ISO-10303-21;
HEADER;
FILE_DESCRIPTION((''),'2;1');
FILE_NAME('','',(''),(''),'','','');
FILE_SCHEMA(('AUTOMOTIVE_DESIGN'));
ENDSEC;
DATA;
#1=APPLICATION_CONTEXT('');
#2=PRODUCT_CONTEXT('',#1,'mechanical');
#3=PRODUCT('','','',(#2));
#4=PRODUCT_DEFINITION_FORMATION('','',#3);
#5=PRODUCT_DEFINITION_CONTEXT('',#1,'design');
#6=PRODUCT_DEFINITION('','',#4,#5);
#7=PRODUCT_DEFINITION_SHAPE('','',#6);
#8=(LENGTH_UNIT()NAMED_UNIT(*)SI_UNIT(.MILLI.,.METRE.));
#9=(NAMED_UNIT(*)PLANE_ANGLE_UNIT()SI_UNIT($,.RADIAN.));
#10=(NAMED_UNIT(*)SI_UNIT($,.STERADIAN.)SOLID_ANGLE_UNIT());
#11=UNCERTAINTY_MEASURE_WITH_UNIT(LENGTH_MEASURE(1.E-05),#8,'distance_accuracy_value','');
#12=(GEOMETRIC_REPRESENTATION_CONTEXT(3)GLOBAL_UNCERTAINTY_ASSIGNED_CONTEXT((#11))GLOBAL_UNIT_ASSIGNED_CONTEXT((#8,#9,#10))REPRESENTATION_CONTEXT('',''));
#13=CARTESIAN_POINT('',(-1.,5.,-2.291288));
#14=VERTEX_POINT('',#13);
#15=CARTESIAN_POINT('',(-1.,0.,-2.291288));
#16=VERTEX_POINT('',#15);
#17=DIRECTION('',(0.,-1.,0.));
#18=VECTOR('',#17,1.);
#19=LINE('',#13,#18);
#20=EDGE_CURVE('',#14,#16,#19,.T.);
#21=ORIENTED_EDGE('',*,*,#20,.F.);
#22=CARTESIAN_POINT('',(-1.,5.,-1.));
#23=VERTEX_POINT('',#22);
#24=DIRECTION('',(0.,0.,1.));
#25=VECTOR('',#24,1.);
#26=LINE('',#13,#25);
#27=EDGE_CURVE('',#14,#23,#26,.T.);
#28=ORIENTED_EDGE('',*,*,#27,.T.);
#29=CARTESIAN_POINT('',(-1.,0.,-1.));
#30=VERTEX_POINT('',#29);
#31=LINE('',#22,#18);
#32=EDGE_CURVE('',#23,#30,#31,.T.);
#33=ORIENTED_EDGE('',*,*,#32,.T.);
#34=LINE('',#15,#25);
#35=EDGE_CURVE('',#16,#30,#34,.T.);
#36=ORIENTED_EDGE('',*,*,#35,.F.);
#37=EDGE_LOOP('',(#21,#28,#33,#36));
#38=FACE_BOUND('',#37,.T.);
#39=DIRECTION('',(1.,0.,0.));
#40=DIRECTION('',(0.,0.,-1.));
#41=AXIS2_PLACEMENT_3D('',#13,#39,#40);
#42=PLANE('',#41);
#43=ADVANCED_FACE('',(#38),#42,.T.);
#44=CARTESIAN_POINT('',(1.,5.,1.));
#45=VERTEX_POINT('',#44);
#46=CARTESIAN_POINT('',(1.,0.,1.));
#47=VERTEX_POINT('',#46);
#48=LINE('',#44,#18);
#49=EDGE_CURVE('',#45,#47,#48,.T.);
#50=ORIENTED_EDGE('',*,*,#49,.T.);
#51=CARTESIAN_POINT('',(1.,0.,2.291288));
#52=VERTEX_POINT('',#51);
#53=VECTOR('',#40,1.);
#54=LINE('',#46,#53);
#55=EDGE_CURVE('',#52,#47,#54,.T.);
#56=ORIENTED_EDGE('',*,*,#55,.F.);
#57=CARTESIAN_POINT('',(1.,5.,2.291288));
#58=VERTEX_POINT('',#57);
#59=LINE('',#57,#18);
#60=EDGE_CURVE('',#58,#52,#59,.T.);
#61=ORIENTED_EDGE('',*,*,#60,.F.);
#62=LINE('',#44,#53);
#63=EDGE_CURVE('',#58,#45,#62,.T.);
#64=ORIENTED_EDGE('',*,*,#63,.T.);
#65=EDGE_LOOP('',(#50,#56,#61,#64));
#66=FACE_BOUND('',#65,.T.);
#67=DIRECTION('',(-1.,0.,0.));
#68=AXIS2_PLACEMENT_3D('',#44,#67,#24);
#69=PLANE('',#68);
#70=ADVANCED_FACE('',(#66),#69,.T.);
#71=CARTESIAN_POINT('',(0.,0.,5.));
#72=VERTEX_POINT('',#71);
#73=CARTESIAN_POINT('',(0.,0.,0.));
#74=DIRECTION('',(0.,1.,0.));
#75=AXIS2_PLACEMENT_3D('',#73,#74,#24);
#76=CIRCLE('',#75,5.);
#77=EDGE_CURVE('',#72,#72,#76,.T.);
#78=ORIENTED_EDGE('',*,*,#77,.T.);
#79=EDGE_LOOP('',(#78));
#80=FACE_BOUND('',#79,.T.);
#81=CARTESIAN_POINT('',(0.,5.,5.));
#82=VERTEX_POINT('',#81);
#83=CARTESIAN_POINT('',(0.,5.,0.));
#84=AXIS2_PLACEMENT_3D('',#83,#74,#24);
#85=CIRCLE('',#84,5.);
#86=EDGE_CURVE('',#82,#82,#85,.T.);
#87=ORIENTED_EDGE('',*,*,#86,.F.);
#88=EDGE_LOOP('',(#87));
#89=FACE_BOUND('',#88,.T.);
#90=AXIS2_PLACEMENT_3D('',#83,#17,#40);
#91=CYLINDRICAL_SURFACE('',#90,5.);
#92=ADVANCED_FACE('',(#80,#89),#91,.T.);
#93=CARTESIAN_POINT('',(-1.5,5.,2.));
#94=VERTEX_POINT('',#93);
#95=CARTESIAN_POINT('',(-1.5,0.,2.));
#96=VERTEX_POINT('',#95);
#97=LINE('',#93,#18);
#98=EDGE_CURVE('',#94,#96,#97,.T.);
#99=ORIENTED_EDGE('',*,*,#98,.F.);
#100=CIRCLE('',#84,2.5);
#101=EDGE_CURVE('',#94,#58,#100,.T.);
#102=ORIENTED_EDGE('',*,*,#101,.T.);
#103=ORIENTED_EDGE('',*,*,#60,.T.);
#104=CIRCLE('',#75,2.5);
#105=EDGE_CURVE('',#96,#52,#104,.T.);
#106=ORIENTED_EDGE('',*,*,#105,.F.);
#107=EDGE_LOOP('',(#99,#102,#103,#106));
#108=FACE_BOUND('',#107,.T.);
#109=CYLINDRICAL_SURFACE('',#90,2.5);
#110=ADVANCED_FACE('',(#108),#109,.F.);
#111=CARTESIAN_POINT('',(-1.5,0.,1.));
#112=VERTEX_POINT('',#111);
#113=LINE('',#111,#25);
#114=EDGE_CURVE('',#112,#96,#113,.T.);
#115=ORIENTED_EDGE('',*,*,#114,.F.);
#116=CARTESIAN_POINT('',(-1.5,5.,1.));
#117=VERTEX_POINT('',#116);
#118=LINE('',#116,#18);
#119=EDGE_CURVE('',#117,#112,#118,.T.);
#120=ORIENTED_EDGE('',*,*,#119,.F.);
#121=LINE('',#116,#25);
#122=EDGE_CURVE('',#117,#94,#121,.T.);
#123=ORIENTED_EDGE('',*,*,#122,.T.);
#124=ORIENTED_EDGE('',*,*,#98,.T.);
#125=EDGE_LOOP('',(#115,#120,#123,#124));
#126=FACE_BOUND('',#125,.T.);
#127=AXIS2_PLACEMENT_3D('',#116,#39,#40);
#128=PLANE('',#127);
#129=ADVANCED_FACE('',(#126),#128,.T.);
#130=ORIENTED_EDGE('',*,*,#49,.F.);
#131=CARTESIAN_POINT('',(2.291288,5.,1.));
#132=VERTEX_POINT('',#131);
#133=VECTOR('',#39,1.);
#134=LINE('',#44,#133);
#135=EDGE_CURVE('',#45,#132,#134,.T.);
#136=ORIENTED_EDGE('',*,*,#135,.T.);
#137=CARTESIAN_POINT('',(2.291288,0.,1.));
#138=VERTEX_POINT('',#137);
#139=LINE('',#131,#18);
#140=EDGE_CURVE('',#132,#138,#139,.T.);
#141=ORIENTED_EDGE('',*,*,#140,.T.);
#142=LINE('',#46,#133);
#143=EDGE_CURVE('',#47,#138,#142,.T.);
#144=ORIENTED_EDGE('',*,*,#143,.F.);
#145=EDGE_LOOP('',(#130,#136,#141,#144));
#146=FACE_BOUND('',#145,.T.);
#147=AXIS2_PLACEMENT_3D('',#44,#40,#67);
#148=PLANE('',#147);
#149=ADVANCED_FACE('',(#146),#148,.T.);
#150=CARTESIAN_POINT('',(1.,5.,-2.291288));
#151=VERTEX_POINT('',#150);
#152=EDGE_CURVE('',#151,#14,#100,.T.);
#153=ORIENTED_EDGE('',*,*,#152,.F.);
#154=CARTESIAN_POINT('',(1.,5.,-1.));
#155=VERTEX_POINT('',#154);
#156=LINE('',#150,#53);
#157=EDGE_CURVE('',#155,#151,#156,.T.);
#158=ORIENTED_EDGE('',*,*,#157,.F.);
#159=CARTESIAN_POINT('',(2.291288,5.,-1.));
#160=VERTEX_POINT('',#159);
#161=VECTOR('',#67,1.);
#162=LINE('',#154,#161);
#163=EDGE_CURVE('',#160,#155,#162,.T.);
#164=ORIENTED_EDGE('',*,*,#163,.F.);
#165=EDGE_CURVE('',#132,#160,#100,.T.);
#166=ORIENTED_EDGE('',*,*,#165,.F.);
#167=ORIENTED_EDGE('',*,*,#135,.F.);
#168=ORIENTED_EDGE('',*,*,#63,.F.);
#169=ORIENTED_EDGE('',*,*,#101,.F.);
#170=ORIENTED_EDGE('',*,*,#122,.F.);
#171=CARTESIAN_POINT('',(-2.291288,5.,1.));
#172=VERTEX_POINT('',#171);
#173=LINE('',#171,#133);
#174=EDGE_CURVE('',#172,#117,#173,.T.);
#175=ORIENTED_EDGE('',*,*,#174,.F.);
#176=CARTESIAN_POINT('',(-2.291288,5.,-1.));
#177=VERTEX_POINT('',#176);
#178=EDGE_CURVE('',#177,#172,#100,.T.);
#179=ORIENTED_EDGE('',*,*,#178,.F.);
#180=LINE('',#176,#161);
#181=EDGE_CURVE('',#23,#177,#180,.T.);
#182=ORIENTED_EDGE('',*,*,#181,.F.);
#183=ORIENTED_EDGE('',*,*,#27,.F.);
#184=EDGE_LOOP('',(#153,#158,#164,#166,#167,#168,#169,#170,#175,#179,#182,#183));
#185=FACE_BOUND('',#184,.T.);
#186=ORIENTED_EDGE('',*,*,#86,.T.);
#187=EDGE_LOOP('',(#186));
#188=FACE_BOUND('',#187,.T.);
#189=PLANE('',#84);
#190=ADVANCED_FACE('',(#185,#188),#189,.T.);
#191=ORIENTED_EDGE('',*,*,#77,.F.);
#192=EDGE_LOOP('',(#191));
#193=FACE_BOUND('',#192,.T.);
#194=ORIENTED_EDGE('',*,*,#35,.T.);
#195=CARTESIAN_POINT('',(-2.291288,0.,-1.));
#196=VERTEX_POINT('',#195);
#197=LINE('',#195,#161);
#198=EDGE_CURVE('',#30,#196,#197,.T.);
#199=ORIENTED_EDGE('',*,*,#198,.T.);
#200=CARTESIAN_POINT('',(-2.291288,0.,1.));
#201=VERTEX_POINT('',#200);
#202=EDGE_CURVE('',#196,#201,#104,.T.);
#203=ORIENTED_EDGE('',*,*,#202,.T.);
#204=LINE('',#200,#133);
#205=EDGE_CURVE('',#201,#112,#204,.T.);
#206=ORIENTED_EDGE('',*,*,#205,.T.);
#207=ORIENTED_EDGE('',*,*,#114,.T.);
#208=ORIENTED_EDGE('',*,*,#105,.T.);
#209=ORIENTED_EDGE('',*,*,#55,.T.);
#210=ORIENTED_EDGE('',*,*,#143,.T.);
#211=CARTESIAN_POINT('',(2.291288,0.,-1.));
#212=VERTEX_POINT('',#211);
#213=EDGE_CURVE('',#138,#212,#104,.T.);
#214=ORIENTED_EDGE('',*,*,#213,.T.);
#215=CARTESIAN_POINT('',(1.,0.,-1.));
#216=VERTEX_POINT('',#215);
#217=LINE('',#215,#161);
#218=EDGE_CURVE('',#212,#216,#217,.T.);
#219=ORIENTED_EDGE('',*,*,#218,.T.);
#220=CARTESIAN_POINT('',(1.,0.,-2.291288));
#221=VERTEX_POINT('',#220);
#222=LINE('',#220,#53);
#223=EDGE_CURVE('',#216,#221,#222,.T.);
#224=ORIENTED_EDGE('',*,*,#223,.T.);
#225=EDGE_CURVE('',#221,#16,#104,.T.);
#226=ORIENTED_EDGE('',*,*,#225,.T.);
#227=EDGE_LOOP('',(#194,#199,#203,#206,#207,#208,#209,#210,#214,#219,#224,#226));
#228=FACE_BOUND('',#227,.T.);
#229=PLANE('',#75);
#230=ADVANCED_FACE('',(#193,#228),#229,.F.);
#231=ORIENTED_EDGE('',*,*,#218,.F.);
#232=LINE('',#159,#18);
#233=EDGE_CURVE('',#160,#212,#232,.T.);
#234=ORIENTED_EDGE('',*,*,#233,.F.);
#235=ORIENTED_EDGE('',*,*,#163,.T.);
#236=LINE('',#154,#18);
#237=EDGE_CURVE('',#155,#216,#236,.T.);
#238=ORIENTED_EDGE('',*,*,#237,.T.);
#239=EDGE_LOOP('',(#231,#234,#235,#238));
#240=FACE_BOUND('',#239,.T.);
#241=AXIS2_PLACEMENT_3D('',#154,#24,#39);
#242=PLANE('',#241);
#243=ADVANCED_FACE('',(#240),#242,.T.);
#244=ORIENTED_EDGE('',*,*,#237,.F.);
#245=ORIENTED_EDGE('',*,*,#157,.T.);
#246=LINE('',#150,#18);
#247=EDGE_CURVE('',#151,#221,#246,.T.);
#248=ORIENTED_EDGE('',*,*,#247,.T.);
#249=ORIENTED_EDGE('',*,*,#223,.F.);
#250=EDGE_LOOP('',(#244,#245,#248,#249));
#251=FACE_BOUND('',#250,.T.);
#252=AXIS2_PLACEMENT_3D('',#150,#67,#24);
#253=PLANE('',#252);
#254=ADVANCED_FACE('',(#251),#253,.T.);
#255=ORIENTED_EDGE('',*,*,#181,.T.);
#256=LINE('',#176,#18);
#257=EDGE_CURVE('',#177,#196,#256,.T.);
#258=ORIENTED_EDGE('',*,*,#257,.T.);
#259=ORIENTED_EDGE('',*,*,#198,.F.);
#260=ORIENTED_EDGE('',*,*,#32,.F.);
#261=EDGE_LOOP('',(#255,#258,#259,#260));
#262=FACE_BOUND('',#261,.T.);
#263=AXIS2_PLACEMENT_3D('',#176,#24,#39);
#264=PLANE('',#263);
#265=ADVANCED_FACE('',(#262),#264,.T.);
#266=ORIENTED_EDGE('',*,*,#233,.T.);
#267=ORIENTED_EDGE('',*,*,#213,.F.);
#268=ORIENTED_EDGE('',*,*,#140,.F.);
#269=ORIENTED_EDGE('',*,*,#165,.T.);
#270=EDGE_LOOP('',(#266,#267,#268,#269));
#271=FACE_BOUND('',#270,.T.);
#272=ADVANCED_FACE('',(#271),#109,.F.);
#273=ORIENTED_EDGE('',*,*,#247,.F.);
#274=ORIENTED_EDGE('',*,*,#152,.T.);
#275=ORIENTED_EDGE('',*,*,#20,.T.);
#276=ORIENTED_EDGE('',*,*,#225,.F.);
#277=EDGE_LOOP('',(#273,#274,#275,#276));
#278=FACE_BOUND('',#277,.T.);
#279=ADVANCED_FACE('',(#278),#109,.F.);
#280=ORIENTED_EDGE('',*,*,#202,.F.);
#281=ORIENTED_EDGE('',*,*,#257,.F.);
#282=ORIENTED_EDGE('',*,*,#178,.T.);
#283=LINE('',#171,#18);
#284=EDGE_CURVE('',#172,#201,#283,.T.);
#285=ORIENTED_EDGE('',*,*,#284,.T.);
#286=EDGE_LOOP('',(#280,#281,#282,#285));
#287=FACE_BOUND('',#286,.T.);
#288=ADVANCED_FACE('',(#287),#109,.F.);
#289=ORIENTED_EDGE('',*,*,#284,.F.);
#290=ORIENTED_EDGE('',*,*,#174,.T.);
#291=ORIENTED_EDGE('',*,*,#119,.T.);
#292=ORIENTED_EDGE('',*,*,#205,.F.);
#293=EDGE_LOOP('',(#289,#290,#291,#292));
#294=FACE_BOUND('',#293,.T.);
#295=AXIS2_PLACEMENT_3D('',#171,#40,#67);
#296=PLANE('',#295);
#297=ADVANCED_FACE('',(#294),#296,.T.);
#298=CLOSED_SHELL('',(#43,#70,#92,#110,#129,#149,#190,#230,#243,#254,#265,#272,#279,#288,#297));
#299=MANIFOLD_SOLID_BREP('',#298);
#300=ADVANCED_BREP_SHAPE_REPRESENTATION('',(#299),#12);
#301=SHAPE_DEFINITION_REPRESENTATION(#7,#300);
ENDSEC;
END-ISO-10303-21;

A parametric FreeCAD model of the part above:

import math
import FreeCAD as App
import Part
import Sketcher

V = App.Vector

doc = App.newDocument("Part")
body = doc.addObject("PartDesign::Body", "Body")

# Sketch on XZ plane
sketch1 = body.newObject("Sketcher::SketchObject", "Sketch")
sketch1.AttachmentSupport = (doc.getObject("XZ_Plane"), [""])
sketch1.MapMode = "FlatFace"
sketch1.addGeometry([
    Part.Circle(V(0, 0, 0), V(0, 0, 1), 5),  # 0
    Part.LineSegment(V(2.291288, 1, 0), V(1, 1, 0)),  # 1
    Part.LineSegment(V(1, 1, 0), V(1, 2.291288, 0)),  # 2
    Part.ArcOfCircle(Part.Circle(V(0, 0, 0), V(0, 0, 1), 2.5), math.radians(66.421821), math.radians(126.869898)),  # 3
    Part.LineSegment(V(-1.5, 2, 0), V(-1.5, 1, 0)),  # 4
    Part.LineSegment(V(-1.5, 1, 0), V(-2.291288, 1, 0)),  # 5
    Part.ArcOfCircle(Part.Circle(V(0, 0, 0), V(0, 0, 1), 2.5), math.radians(156.421821), math.radians(203.578179)),  # 6
    Part.LineSegment(V(-2.291288, -1, 0), V(-1, -1, 0)),  # 7
    Part.LineSegment(V(-1, -1, 0), V(-1, -2.291288, 0)),  # 8
    Part.ArcOfCircle(Part.Circle(V(0, 0, 0), V(0, 0, 1), 2.5), math.radians(-113.578179), math.radians(-66.421821)),  # 9
    Part.LineSegment(V(1, -2.291288, 0), V(1, -1, 0)),  # 10
    Part.LineSegment(V(1, -1, 0), V(2.291288, -1, 0)),  # 11
    Part.ArcOfCircle(Part.Circle(V(0, 0, 0), V(0, 0, 1), 2.5), math.radians(-23.578179), math.radians(23.578179)),  # 12
], False)
sketch1.addConstraint([
    Sketcher.Constraint("Coincident", 1, 2, 2, 1),
    Sketcher.Constraint("Coincident", 2, 2, 3, 1),
    Sketcher.Constraint("Coincident", 3, 2, 4, 1),
    Sketcher.Constraint("Coincident", 4, 2, 5, 1),
    Sketcher.Constraint("Coincident", 5, 2, 6, 1),
    Sketcher.Constraint("Coincident", 6, 2, 7, 1),
    Sketcher.Constraint("Coincident", 7, 2, 8, 1),
    Sketcher.Constraint("Coincident", 8, 2, 9, 1),
    Sketcher.Constraint("Coincident", 9, 2, 10, 1),
    Sketcher.Constraint("Coincident", 10, 2, 11, 1),
    Sketcher.Constraint("Coincident", 11, 2, 12, 1),
    Sketcher.Constraint("Coincident", 12, 2, 1, 1),
    Sketcher.Constraint("Horizontal", 1),
    Sketcher.Constraint("Vertical", 2),
    Sketcher.Constraint("Vertical", 4),
    Sketcher.Constraint("Horizontal", 5),
    Sketcher.Constraint("Horizontal", 7),
    Sketcher.Constraint("Vertical", 8),
    Sketcher.Constraint("Vertical", 10),
    Sketcher.Constraint("Horizontal", 11),
    Sketcher.Constraint("Coincident", 0, 3, -1, 1),
    Sketcher.Constraint("Coincident", 3, 3, -1, 1),
    Sketcher.Constraint("Coincident", 6, 3, -1, 1),
    Sketcher.Constraint("Coincident", 9, 3, -1, 1),
    Sketcher.Constraint("Coincident", 12, 3, -1, 1),
    Sketcher.Constraint("Equal", 3, 6),
    Sketcher.Constraint("Equal", 6, 9),
    Sketcher.Constraint("Equal", 9, 12),
    Sketcher.Constraint("Symmetric", 1, 2, 7, 2, -1, 1),
    Sketcher.Constraint("Symmetric", 7, 2, 10, 2, -2),
    Sketcher.Constraint("Horizontal", 1, 2, 4, 2),
    Sketcher.Constraint("Equal", 11, 2),
    Sketcher.Constraint("Diameter", 0, 10.0),
    Sketcher.Constraint("Radius", 3, 2.5),
    Sketcher.Constraint("DistanceY", 4, 2, 4, 1, 1.0),
    Sketcher.Constraint("DistanceX", -1, 1, 1, 2, 1.0),
])
pad1 = body.newObject("PartDesign::Pad", "Pad")
pad1.Profile = sketch1
pad1.Length = 5
pad1.Reversed = True

doc.recompute()
